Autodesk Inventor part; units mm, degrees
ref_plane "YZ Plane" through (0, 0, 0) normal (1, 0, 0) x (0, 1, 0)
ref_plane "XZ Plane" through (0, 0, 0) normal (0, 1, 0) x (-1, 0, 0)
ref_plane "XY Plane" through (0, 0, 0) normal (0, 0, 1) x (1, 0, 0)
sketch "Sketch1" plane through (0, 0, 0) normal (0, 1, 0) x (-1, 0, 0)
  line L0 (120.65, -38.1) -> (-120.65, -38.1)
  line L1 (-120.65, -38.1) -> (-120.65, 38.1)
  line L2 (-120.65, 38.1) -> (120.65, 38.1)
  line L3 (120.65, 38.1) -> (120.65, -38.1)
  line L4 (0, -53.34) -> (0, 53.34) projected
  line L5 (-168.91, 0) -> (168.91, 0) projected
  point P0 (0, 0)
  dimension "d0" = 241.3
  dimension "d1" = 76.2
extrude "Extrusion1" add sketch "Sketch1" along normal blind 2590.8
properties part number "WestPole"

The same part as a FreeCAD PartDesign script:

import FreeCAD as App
import Part
import Sketcher
Q = App.Units.Quantity

doc = App.newDocument("Part")
body = doc.addObject("PartDesign::Body", "Body")

sketch1 = body.newObject("Sketcher::SketchObject", "Sketch")
sketch1.AttachmentSupport = (doc.getObject("XZ_Plane"), [""])
sketch1.MapMode = "FlatFace"
sketch1.addGeometry([
    Part.LineSegment(App.Vector(-121, -38, 0), App.Vector(-121, 38, 0)),
    Part.LineSegment(App.Vector(-121, 38, 0), App.Vector(121, 38, 0)),
    Part.LineSegment(App.Vector(121, 38, 0), App.Vector(121, -38, 0)),
    Part.LineSegment(App.Vector(121, -38, 0), App.Vector(-121, -38, 0)),
], False)
sketch1.addConstraint([
    Sketcher.Constraint("Coincident", 0, 2, 1, 1),
    Sketcher.Constraint("Coincident", 1, 2, 2, 1),
    Sketcher.Constraint("Coincident", 2, 2, 3, 1),
    Sketcher.Constraint("Coincident", 3, 2, 0, 1),
    Sketcher.Constraint("Vertical", 0),
    Sketcher.Constraint("Horizontal", 1),
    Sketcher.Constraint("Vertical", 2),
    Sketcher.Constraint("Horizontal", 3),
    Sketcher.Constraint("Symmetric", 0, 2, 2, 2, -1, 1),
    Sketcher.Constraint("DistanceY", 0, 1, 0, 2, Q("3 in")),
    Sketcher.Constraint("DistanceX", 1, 1, 1, 2, Q("9.5 in")),
])
pad1 = body.newObject("PartDesign::Pad", "Pad")
pad1.Profile = sketch1
pad1.Length = Q("102 in")
pad1.Reversed = True

doc.recompute()
